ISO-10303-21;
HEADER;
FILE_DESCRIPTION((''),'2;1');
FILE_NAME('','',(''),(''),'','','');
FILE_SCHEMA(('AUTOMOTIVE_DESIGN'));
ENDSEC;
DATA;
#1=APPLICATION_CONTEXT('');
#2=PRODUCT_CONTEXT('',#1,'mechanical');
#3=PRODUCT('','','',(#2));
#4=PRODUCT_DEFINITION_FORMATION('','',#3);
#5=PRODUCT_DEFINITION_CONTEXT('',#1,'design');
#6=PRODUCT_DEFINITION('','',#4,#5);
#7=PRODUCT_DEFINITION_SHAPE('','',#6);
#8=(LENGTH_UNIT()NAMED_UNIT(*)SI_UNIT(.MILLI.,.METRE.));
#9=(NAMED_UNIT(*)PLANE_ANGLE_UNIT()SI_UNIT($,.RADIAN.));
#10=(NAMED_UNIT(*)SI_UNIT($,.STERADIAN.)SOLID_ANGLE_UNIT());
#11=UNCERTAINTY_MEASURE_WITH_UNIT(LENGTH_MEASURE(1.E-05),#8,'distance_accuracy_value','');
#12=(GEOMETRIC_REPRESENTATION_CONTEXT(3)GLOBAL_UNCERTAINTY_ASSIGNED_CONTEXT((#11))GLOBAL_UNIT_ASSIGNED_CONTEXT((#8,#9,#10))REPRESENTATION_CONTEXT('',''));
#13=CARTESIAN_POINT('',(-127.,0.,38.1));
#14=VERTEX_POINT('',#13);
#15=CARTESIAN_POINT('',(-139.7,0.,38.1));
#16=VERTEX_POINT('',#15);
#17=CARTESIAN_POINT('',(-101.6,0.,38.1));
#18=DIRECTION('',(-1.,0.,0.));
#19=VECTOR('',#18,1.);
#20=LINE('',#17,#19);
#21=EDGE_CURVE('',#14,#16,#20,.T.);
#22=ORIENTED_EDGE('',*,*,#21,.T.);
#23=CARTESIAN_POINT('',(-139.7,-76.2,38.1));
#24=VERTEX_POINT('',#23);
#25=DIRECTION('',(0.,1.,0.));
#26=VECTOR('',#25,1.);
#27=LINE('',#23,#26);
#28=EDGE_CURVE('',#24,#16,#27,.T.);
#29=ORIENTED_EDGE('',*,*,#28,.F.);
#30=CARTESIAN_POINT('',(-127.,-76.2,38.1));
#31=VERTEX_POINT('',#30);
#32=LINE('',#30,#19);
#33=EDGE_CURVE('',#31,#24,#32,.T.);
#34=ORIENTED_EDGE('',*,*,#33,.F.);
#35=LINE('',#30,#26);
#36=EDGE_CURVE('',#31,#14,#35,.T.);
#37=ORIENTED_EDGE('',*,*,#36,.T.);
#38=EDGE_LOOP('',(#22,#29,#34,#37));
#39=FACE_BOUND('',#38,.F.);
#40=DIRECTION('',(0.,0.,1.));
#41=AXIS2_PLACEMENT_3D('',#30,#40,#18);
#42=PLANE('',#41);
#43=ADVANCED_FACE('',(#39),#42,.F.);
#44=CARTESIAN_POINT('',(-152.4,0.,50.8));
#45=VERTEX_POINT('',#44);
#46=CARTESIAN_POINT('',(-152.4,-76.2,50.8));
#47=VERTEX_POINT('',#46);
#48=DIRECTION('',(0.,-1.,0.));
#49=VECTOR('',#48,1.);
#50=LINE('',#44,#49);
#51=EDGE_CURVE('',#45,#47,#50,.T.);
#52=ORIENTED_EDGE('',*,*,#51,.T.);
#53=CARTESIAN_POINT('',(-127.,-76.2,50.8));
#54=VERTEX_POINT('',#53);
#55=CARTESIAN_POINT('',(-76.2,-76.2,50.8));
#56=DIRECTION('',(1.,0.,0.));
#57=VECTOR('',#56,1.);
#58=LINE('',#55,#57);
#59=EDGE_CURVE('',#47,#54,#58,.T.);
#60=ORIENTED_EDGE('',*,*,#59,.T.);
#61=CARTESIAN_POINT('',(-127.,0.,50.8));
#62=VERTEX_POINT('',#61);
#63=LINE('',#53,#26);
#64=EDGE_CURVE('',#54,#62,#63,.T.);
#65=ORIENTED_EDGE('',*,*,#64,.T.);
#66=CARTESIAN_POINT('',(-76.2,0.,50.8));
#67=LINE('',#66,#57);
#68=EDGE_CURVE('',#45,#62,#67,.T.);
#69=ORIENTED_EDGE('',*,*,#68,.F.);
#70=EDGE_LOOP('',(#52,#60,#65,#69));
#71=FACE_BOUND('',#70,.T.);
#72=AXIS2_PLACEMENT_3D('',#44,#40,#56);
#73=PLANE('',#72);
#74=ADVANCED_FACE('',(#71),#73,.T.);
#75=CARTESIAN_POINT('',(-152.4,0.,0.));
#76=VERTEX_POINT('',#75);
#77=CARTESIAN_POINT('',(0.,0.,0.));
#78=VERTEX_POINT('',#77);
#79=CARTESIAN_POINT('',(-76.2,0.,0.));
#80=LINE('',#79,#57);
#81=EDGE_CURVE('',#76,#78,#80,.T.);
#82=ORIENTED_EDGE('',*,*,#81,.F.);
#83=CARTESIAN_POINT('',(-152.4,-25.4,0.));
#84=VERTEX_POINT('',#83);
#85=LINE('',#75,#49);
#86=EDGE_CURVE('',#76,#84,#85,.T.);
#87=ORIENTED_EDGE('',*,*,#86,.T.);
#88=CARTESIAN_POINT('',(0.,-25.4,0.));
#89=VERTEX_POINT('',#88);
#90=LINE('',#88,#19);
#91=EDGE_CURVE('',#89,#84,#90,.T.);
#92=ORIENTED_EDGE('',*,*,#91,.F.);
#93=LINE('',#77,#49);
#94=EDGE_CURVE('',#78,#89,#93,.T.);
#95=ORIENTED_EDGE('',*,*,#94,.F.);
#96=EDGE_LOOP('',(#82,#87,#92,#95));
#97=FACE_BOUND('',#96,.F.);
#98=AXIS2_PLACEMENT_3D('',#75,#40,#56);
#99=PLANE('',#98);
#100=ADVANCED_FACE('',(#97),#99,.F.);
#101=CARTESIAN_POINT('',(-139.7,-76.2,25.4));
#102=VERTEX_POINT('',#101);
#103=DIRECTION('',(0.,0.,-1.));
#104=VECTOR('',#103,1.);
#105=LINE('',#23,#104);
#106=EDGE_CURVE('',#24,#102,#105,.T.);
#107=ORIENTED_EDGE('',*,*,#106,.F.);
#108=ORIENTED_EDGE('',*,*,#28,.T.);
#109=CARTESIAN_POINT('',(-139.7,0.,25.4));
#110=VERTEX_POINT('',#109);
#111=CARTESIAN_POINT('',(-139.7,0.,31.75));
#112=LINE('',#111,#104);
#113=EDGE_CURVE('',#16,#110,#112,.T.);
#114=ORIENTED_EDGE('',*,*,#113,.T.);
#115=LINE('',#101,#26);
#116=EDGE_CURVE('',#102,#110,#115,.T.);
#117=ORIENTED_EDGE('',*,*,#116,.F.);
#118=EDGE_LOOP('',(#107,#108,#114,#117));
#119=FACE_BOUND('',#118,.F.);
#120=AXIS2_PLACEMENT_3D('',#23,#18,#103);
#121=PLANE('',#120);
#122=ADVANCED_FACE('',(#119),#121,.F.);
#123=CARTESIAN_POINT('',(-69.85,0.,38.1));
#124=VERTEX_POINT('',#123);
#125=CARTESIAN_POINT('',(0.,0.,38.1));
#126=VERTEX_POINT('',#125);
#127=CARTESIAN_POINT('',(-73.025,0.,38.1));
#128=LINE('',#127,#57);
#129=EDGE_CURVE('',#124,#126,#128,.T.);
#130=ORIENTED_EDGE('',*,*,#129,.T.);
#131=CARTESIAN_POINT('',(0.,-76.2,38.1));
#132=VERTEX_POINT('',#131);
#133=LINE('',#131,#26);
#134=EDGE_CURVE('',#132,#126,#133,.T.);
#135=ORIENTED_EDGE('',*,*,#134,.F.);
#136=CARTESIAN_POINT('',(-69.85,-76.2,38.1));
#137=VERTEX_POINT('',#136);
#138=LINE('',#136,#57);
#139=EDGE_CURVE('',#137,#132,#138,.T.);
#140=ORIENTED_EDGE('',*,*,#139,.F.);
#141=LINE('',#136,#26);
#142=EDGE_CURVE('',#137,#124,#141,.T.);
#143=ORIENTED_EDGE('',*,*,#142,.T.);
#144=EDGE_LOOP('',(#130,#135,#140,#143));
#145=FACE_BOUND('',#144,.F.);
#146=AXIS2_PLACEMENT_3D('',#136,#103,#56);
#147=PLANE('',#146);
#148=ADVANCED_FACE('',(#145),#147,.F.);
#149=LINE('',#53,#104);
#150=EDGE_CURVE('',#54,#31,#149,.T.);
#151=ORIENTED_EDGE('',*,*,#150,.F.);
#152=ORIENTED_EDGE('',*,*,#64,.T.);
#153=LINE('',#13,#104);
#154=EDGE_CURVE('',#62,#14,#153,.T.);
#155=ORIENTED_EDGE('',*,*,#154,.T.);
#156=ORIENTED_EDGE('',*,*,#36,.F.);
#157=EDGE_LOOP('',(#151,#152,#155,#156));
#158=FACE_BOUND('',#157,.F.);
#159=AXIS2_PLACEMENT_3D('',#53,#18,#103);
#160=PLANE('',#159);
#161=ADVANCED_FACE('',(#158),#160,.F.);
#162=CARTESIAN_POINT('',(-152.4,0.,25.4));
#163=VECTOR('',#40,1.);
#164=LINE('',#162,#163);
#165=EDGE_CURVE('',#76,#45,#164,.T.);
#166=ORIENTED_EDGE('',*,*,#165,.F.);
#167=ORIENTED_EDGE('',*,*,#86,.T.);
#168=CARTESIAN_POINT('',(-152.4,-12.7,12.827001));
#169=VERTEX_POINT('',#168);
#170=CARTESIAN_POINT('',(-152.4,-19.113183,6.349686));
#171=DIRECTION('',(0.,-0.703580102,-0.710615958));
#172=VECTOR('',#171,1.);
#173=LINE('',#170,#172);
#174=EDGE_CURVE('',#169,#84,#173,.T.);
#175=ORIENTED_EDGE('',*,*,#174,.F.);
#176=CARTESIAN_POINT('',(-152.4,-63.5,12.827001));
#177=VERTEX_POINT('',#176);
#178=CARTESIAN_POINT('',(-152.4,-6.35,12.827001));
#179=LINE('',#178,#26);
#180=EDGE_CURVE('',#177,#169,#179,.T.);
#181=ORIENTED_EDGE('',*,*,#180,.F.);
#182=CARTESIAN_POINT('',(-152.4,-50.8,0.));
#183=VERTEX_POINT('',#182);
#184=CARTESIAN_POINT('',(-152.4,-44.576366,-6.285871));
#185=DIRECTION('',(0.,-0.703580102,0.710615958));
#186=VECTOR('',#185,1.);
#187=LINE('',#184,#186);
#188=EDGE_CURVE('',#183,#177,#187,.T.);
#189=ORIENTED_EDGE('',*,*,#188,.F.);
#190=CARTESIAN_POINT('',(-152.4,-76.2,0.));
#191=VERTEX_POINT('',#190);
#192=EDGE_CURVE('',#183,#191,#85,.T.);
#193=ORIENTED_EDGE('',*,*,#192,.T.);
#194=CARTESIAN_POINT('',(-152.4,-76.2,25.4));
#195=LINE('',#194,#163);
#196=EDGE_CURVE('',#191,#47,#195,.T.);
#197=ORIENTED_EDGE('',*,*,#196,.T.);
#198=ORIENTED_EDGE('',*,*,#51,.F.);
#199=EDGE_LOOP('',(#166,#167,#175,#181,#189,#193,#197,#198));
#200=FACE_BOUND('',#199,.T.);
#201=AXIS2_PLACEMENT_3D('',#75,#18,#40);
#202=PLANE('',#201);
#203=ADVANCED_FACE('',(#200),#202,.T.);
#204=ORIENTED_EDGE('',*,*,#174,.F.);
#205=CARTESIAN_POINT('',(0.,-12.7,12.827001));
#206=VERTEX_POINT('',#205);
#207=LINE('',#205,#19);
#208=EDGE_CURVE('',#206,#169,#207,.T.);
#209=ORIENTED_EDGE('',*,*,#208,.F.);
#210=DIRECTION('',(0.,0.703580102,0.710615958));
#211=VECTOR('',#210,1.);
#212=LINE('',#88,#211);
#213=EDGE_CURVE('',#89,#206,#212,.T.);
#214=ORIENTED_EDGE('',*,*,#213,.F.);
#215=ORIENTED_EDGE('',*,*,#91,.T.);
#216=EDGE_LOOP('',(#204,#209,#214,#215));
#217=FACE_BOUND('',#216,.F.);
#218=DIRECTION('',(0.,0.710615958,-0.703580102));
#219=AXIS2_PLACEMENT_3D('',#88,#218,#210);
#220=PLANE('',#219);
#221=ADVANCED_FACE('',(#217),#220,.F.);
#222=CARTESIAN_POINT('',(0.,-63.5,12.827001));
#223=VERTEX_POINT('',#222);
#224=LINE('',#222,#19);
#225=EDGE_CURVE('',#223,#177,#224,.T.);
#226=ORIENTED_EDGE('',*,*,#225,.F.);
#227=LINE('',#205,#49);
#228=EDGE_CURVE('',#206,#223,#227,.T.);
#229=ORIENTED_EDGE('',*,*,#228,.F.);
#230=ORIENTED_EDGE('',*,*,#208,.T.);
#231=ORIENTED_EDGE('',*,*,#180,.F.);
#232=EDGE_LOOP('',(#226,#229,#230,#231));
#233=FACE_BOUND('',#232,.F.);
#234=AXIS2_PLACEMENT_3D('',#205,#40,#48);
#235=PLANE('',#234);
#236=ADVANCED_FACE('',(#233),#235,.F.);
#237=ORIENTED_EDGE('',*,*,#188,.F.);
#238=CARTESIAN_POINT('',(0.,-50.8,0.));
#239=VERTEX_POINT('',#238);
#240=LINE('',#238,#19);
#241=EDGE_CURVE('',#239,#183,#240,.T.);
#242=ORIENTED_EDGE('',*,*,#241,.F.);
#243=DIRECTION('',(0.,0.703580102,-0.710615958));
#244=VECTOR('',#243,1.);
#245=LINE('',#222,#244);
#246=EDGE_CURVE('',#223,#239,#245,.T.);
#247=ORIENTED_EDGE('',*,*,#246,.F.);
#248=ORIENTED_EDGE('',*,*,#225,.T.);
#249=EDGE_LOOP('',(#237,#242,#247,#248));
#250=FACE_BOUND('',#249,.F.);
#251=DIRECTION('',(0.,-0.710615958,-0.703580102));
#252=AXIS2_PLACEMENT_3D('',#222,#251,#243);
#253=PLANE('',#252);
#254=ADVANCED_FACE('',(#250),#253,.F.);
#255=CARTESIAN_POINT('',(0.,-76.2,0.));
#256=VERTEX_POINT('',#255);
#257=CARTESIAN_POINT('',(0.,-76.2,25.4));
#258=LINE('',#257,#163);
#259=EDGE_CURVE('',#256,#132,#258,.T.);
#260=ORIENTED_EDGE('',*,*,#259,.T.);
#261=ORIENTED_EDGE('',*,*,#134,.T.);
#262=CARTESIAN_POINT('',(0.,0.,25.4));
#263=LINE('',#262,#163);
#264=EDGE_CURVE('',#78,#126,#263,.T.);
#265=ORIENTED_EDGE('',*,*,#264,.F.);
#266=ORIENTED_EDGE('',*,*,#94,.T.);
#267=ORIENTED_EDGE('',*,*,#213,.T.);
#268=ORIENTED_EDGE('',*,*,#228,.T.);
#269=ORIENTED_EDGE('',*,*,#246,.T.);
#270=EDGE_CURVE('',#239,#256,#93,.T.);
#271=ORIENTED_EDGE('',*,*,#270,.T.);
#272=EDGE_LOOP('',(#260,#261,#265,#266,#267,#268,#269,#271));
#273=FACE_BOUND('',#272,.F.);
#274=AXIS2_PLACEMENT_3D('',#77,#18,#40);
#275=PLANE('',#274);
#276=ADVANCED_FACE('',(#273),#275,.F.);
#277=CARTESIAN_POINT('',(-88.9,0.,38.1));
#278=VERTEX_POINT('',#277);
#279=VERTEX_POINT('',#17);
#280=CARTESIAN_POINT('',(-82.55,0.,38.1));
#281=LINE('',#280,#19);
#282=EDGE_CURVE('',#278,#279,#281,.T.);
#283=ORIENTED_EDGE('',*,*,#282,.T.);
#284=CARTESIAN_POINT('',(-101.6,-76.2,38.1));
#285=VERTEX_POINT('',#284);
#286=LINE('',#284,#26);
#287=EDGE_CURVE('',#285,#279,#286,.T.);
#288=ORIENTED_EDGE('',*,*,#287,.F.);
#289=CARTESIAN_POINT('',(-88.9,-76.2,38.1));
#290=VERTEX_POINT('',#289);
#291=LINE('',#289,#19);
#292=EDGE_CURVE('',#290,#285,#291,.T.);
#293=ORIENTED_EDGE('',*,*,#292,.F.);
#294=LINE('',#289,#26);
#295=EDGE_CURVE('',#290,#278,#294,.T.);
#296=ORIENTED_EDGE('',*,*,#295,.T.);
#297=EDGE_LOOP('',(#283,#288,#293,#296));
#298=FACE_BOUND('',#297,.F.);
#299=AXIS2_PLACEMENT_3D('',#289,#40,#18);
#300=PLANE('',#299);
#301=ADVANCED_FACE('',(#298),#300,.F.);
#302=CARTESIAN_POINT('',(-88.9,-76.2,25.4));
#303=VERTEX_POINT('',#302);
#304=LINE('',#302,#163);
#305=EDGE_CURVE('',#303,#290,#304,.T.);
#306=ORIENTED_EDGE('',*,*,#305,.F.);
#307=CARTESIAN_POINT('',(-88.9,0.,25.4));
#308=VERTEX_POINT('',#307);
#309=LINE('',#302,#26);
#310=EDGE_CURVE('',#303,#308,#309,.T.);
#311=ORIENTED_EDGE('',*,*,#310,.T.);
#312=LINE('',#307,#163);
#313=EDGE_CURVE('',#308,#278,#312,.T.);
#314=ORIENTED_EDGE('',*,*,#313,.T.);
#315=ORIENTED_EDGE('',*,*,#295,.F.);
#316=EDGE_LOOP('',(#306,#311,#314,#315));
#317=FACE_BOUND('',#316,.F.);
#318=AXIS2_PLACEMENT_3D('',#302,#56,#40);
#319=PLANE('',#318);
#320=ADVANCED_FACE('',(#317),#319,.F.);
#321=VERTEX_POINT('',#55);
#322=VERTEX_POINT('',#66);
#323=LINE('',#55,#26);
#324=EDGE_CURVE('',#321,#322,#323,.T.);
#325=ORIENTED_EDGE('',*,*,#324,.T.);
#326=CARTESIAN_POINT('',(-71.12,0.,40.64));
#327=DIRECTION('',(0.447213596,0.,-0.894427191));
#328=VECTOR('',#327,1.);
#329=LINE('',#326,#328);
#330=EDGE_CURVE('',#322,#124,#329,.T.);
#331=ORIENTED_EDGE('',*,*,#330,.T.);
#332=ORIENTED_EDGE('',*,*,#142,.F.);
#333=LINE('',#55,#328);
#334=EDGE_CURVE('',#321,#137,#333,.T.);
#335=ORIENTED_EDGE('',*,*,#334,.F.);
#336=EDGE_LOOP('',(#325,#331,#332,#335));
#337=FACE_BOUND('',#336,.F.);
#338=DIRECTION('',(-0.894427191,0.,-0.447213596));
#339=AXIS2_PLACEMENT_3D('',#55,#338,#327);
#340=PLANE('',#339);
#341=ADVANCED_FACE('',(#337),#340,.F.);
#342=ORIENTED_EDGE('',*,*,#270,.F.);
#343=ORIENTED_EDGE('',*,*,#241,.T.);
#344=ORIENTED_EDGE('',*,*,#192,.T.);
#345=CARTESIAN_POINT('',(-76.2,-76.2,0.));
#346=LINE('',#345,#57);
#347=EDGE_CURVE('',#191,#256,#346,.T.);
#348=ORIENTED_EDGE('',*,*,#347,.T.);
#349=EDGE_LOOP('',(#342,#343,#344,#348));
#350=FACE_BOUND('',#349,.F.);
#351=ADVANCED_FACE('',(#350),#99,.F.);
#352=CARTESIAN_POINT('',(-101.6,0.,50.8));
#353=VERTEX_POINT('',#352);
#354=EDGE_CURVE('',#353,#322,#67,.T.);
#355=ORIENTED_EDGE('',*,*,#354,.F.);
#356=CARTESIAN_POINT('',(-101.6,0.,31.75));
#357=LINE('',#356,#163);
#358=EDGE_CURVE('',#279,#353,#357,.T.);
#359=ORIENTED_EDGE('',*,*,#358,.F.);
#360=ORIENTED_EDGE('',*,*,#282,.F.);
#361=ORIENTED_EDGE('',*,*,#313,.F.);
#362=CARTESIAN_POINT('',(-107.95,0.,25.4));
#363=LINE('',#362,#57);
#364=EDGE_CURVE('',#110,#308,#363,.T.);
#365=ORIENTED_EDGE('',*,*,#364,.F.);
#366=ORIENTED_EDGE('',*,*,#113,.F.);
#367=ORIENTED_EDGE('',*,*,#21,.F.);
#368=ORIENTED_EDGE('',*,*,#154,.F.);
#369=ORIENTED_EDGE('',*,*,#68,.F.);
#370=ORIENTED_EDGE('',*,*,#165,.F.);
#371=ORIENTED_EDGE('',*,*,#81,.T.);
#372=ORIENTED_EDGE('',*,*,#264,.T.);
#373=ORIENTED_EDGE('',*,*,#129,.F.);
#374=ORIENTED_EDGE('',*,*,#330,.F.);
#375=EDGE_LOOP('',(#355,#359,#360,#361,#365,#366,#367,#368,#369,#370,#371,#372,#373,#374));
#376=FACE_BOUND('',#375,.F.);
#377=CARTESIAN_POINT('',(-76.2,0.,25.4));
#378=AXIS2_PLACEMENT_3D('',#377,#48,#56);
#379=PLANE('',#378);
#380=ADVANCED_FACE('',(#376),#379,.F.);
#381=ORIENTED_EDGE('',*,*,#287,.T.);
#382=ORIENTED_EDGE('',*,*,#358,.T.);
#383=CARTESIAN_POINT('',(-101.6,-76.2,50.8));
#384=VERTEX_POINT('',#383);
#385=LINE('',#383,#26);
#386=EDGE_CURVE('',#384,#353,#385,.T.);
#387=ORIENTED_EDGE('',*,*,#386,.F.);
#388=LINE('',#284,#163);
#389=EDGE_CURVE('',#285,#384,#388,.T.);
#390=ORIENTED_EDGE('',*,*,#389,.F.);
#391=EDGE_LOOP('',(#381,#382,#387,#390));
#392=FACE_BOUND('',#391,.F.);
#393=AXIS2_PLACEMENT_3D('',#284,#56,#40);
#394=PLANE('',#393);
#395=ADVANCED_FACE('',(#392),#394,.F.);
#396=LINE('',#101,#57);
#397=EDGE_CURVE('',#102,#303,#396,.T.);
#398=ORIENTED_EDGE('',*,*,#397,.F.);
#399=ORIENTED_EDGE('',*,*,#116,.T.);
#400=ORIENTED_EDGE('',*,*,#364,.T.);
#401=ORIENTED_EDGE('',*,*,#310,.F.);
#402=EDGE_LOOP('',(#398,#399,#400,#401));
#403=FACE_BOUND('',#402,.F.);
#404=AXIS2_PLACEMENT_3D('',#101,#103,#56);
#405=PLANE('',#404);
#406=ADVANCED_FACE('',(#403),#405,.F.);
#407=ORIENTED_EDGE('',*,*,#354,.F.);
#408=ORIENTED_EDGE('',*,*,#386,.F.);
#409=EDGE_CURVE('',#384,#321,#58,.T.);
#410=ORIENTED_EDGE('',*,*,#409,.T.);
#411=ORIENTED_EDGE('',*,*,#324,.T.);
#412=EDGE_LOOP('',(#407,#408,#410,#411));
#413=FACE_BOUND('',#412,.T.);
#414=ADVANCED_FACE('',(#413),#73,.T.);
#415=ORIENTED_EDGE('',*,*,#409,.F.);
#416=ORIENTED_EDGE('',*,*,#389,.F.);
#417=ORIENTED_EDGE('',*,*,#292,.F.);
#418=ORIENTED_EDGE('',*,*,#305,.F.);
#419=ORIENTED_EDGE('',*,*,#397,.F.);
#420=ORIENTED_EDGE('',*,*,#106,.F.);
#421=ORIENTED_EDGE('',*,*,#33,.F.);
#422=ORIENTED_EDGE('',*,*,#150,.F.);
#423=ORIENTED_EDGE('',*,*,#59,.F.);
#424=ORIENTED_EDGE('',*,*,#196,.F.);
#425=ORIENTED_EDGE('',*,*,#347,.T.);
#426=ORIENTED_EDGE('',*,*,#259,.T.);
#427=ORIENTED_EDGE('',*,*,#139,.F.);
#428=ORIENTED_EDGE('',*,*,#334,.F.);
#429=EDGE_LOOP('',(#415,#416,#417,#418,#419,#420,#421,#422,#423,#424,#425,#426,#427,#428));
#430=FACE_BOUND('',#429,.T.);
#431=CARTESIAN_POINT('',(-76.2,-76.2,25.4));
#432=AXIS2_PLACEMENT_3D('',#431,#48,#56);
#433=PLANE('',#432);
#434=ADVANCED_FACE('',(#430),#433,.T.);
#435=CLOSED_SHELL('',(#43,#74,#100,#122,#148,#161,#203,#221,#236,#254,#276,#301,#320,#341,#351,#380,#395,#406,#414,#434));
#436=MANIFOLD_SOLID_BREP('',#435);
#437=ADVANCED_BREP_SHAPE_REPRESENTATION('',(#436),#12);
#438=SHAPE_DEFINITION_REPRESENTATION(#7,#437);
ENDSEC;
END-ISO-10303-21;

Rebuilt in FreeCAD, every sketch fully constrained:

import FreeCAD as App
import Part
import Sketcher
from FreeCAD import Vector
Q = App.Units.Quantity


def add_polygon(sketch, points):
    """Adds a closed chain of lines whose ends are joined by coincident constraints."""
    first, n = sketch.GeometryCount, len(points)
    for a, b in zip(points, points[1:] + points[:1]):
        sketch.addGeometry(Part.LineSegment(App.Vector(*a, 0), App.Vector(*b, 0)), False)
    for i in range(n):
        sketch.addConstraint(Sketcher.Constraint("Coincident", first + i, 2, first + (i + 1) % n, 1))

doc = App.newDocument("Part")
body = doc.addObject("PartDesign::Body", "Body")

# Sketch on XZ plane
sketch1 = doc.addObject("Sketcher::SketchObject", "Sketch")
body.addObject(sketch1)
sketch1.AttachmentSupport = (doc.XZ_Plane, [""])
sketch1.MapMode = "FlatFace"
add_polygon(sketch1, [(-152.4, 50.8), (-152.4, 0), (0, 0), (0, 50.8)])  # lines 0-3
sketch1.addConstraint([
    Sketcher.Constraint("Vertical", 0),
    Sketcher.Constraint("Horizontal", 1),
    Sketcher.Constraint("Vertical", 2),
    Sketcher.Constraint("Horizontal", 3),
    Sketcher.Constraint("Coincident", 1, 2, -1, 1),
    Sketcher.Constraint("DistanceX", 1, 1, 1, 2, Q("6 in")),
    Sketcher.Constraint("DistanceY", 0, 2, 0, 1, Q("2 in")),
])
pad1 = doc.addObject("PartDesign::Pad", "Pad")
body.addObject(pad1)
pad1.Profile = sketch1
pad1.Length = Q("3 in")

# Sketch on XZ plane
sketch2 = doc.addObject("Sketcher::SketchObject", "Sketch001")
body.addObject(sketch2)
sketch2.AttachmentSupport = (doc.XZ_Plane, [""])
sketch2.MapMode = "FlatFace"
sketch2.AttachmentOffset = App.Placement(Vector(0, 0, 3 * 25.4), App.Rotation())
add_polygon(sketch2, [(-101.6, 50.8), (-127, 50.8), (-127, 38.1), (-139.7, 38.1), (-139.7, 25.4), (-88.9, 25.4), (-88.9, 38.1), (-101.6, 38.1)])  # lines 0-7
sketch2.addConstraint([
    Sketcher.Constraint("Horizontal", 0),
    Sketcher.Constraint("Vertical", 1),
    Sketcher.Constraint("Horizontal", 2),
    Sketcher.Constraint("Vertical", 3),
    Sketcher.Constraint("Horizontal", 4),
    Sketcher.Constraint("Vertical", 5),
    Sketcher.Constraint("Horizontal", 6),
    Sketcher.Constraint("Vertical", 7),
    Sketcher.Constraint("Horizontal", 2, 2, 5, 2),
    Sketcher.Constraint("Equal", 2, 6),
    Sketcher.Constraint("Equal", 6, 1),
    Sketcher.Constraint("Equal", 1, 3),
    Sketcher.Constraint("DistanceX", 0, 2, 0, 1, Q("1 in")),
    Sketcher.Constraint("DistanceX", 4, 1, 4, 2, Q("2 in")),
    Sketcher.Constraint("DistanceX", 0, 2, -1, 1, Q("5 in")),
    Sketcher.Constraint("DistanceY", -1, 1, 0, 2, Q("2 in")),
])
pocket1 = doc.addObject("PartDesign::Pocket", "Pocket")
body.addObject(pocket1)
pocket1.Profile = sketch2
pocket1.Length = Q("3.66 in")

# Sketch on XZ plane
sketch3 = doc.addObject("Sketcher::SketchObject", "Sketch002")
body.addObject(sketch3)
sketch3.AttachmentSupport = (doc.XZ_Plane, [""])
sketch3.MapMode = "FlatFace"
sketch3.AttachmentOffset = App.Placement(Vector(0, 0, 3 * 25.4), App.Rotation())
add_polygon(sketch3, [(0, 50.8), (-76.2, 50.8), (-69.85, 38.1), (0, 38.1)])  # lines 0-3
sketch3.addConstraint([
    Sketcher.Constraint("Horizontal", 0),
    Sketcher.Constraint("Horizontal", 2),
    Sketcher.Constraint("Vertical", 3),
    Sketcher.Constraint("PointOnObject", 2, 2, -2),
    Sketcher.Constraint("DistanceX", 0, 2, 0, 1, Q("3 in")),
    Sketcher.Constraint("DistanceY", 3, 1, 3, 2, Q("0.5 in")),
    Sketcher.Constraint("DistanceY", -1, 1, 0, 2, Q("2 in")),
    Sketcher.Constraint("DistanceX", 2, 1, 2, 2, Q("2.75 in")),
])
pocket2 = doc.addObject("PartDesign::Pocket", "Pocket001")
body.addObject(pocket2)
pocket2.Profile = sketch3
pocket2.Length = Q("3.68 in")

# Sketch on YZ plane
sketch4 = doc.addObject("Sketcher::SketchObject", "Sketch003")
body.addObject(sketch4)
sketch4.AttachmentSupport = (doc.YZ_Plane, [""])
sketch4.MapMode = "FlatFace"
add_polygon(sketch4, [(-63.5, 12.827001), (-50.8, 0), (-25.4, 0), (-12.7, 12.827001)])  # lines 0-3
sketch4.addConstraint([
    Sketcher.Constraint("Horizontal", 1),
    Sketcher.Constraint("Horizontal", 3),
    Sketcher.Constraint("PointOnObject", 0, 2, -1),
    Sketcher.Constraint("Equal", 0, 2),
    Sketcher.Constraint("DistanceX", 1, 1, 1, 2, Q("1 in")),
    Sketcher.Constraint("DistanceX", 3, 2, 3, 1, Q("2 in")),
    Sketcher.Constraint("DistanceX", 0, 2, -1, 1, Q("2 in")),
    Sketcher.Constraint("DistanceY", -1, 1, 2, 2, Q("0.505 in")),
])
pocket3 = doc.addObject("PartDesign::Pocket", "Pocket002")
body.addObject(pocket3)
pocket3.Profile = sketch4
pocket3.Length = Q("8.01 in")

doc.recompute()
